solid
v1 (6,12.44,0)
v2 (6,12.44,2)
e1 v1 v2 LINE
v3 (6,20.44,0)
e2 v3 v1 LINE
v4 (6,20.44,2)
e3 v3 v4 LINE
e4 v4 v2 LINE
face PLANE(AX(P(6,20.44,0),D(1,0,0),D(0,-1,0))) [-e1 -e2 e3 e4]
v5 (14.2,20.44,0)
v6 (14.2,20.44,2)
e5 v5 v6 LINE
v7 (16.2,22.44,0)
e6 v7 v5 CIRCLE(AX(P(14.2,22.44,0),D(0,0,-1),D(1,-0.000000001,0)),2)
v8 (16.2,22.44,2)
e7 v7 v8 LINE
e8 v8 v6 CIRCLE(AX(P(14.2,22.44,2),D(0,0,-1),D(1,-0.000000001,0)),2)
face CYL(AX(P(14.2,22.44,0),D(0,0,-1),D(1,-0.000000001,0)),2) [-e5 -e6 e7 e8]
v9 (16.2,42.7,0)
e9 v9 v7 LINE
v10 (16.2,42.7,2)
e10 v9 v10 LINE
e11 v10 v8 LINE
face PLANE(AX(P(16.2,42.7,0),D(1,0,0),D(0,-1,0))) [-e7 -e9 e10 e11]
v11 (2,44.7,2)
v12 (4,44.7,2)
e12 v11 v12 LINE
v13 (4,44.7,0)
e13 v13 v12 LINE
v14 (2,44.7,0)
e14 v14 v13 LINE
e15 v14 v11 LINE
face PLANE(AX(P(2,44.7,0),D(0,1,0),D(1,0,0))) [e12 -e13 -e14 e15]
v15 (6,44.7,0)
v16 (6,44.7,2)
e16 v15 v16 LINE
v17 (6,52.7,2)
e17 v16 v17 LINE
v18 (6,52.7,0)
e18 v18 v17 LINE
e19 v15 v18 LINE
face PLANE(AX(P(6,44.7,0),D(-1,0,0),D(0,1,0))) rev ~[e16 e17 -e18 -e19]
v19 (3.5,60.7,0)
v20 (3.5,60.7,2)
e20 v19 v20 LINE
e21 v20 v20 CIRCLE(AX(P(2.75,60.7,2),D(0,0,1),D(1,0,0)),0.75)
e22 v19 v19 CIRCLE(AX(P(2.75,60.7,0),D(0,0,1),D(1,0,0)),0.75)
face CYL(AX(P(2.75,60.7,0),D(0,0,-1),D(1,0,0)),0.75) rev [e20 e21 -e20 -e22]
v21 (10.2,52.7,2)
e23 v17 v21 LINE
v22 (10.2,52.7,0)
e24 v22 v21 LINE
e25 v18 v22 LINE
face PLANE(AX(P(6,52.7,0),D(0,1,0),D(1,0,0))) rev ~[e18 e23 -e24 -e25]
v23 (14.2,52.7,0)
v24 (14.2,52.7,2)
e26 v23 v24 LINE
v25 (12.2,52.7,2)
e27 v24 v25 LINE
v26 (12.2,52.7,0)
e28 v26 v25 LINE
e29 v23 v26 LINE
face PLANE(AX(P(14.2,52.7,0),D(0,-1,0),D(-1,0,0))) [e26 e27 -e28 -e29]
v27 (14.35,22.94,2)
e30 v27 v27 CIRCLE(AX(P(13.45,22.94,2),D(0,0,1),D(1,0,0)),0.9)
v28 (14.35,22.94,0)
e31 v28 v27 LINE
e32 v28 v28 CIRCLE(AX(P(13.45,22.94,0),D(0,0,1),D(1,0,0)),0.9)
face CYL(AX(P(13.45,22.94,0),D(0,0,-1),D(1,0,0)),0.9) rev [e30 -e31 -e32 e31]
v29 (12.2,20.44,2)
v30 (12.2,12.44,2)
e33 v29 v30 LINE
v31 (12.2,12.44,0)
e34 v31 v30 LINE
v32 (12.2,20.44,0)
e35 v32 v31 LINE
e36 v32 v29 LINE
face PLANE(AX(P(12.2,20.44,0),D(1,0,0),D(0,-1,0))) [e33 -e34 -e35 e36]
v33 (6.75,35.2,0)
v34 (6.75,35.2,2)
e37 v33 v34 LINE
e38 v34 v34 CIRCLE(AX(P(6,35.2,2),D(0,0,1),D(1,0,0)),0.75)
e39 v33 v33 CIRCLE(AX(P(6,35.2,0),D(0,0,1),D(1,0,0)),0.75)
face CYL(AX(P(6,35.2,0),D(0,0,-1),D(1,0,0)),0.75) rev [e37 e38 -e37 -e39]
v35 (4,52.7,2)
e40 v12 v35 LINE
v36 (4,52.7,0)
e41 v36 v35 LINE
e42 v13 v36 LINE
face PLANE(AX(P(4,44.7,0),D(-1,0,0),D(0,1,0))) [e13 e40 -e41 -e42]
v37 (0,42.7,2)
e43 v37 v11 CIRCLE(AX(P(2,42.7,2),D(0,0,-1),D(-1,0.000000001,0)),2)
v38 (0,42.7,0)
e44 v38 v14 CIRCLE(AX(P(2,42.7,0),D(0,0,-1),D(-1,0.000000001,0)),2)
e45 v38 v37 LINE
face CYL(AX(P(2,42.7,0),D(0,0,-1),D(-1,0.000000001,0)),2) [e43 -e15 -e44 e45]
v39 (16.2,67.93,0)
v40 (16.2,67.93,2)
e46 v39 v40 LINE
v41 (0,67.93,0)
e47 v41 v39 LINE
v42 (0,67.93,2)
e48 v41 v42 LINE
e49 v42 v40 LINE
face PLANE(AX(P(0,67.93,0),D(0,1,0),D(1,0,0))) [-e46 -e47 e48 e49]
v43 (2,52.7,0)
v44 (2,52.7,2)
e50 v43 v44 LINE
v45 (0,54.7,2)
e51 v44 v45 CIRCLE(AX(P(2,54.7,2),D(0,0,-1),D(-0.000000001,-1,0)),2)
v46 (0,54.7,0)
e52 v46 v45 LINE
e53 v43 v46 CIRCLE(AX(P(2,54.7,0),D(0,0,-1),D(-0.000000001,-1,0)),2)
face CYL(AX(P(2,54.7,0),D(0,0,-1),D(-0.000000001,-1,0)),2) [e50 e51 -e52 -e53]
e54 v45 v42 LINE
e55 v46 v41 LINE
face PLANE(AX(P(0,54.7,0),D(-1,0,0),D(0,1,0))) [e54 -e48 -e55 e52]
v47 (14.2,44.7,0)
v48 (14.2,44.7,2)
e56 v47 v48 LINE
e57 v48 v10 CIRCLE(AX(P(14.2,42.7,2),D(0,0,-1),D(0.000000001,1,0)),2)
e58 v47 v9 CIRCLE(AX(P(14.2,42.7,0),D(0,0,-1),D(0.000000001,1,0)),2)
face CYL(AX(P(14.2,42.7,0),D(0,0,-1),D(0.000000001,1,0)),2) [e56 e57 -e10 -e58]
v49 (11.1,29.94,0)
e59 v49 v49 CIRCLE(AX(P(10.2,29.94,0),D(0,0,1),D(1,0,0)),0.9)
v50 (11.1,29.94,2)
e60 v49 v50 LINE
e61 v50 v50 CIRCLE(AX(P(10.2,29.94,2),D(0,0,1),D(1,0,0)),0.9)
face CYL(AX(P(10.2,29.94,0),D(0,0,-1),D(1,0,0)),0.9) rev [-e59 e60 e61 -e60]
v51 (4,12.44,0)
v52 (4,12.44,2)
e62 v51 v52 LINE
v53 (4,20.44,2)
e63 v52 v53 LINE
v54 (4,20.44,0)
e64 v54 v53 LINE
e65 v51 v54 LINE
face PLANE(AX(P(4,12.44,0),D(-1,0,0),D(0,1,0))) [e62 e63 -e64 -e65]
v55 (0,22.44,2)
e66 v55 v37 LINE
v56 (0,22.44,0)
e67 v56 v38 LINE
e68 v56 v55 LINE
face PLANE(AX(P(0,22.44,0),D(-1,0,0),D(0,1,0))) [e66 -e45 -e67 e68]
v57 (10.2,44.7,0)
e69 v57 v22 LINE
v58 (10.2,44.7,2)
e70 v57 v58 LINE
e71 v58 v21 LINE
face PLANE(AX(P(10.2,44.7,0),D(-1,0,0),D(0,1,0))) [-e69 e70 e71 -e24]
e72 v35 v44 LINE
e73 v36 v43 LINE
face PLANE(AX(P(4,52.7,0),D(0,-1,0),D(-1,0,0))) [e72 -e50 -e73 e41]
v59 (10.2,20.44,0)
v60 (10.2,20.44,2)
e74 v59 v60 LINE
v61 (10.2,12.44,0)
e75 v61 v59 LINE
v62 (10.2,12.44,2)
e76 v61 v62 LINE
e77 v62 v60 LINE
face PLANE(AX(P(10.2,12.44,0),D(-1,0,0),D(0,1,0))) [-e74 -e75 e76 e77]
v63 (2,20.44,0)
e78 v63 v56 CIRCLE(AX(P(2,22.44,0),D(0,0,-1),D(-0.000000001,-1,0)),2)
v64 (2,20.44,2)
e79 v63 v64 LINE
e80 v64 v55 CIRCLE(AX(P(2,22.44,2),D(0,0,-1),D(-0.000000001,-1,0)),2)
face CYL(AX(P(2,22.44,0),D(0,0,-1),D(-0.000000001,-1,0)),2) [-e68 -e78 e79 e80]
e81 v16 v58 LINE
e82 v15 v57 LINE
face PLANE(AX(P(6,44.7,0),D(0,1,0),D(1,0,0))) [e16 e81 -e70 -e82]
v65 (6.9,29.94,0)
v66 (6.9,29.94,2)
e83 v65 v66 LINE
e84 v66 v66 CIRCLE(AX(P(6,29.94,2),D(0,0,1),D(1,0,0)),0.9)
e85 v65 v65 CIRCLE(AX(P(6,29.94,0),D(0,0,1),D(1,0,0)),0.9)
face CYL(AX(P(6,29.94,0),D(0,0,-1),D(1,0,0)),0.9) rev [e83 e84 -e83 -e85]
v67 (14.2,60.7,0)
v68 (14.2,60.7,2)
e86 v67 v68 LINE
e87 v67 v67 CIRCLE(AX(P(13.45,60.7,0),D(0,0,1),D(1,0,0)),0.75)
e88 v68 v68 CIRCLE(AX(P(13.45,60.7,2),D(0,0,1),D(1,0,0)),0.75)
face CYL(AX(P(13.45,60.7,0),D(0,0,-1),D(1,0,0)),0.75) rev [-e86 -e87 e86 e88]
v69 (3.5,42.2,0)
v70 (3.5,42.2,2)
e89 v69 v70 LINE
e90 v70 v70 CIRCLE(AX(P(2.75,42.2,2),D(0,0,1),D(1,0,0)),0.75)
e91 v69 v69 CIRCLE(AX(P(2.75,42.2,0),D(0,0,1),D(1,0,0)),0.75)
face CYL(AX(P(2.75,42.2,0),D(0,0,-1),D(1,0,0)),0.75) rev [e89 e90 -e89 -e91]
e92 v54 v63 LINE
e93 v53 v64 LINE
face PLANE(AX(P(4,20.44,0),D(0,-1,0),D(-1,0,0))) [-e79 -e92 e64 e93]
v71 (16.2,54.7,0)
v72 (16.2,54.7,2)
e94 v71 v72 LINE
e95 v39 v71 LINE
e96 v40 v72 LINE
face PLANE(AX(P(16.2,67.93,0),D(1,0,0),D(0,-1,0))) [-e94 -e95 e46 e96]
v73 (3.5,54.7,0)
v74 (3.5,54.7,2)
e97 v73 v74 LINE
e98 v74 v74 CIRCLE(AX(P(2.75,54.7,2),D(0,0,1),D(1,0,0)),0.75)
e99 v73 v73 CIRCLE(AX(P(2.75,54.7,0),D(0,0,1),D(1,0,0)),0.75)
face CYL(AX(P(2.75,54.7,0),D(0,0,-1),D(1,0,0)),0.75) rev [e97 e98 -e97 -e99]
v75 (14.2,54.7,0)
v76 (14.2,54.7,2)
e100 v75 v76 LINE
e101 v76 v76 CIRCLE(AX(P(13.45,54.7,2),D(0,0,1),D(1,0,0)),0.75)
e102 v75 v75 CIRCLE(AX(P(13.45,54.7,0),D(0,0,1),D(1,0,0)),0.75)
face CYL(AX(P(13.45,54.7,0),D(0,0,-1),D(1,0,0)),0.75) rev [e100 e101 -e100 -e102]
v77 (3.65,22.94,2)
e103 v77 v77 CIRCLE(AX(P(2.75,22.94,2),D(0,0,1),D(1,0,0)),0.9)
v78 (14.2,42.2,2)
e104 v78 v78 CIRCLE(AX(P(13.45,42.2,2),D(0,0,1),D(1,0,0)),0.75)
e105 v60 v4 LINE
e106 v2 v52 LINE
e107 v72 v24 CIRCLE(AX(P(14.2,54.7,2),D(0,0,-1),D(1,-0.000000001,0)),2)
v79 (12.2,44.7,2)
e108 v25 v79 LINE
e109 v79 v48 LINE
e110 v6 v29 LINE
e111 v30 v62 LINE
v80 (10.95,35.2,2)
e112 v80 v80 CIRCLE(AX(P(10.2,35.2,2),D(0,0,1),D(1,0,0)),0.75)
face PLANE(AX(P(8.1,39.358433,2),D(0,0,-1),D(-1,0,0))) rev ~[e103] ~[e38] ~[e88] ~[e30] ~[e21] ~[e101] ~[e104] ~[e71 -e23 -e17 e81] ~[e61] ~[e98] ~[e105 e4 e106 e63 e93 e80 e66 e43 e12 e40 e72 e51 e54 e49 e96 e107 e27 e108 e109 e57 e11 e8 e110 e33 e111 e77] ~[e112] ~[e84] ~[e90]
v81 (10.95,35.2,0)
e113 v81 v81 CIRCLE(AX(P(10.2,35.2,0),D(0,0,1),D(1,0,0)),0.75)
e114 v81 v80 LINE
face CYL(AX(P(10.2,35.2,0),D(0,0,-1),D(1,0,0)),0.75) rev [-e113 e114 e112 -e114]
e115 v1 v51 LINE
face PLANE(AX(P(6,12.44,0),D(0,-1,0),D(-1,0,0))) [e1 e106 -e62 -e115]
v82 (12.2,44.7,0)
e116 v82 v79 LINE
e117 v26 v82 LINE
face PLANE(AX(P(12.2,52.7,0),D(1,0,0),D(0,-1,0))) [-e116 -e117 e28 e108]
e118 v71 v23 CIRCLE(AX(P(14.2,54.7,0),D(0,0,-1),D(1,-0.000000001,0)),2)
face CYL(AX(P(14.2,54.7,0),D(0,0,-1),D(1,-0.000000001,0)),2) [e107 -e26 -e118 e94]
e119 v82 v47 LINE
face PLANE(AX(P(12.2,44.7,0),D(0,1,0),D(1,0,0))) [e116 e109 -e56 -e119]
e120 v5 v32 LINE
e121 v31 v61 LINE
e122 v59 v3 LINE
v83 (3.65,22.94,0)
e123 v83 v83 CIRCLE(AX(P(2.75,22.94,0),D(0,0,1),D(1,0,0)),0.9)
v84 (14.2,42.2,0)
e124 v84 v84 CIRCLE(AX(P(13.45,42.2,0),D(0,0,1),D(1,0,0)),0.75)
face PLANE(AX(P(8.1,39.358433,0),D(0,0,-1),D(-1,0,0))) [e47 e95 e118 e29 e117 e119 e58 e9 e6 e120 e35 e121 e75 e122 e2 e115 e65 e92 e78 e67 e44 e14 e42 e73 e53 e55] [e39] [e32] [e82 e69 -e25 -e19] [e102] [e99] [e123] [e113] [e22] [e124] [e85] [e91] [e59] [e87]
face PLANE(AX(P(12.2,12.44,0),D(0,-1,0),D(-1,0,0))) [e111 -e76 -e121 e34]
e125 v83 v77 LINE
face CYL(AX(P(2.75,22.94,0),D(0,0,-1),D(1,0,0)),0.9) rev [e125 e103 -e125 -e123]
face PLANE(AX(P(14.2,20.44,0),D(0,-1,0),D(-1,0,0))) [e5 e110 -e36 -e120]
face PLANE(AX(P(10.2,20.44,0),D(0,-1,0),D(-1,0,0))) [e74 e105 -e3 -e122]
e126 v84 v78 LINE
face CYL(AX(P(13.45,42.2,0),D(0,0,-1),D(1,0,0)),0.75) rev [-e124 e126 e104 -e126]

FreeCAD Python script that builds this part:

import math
import FreeCAD as App
import Part
import Sketcher
Q = App.Units.Quantity

doc = App.newDocument("Part")
params = doc.addObject("Spreadsheet::Sheet", "Params")
for row, (alias, value) in enumerate([
    ("sketch1_radius", "2 mm"),
    ("sketch1_diameter", "1.8 mm"),
    ("sketch1_diameter2", "1.5 mm"),
    ("sketch1_width", "2 mm"),
    ("sketch1_height", "8 mm"),
    ("pad1_length", "2 mm"),
], start=1):
    params.set(f"A{row}", alias)
    params.set(f"B{row}", "=" + value)
    params.setAlias(f"B{row}", alias)

body = doc.addObject("PartDesign::Body", "Body")

sketch1 = body.newObject("Sketcher::SketchObject", "Sketch")
sketch1.AttachmentSupport = (doc.getObject("XY_Plane"), [""])
sketch1.MapMode = "FlatFace"
sketch1.addGeometry([
    Part.LineSegment(App.Vector(4, 52.7, 0), App.Vector(4, 44.7, 0)),
    Part.LineSegment(App.Vector(4, 44.7, 0), App.Vector(2, 44.7, 0)),
    Part.ArcOfCircle(Part.Circle(App.Vector(2, 42.7, 0), App.Vector(0, 0, 1), 2), math.radians(90), math.radians(180)),
    Part.LineSegment(App.Vector(0, 42.7, 0), App.Vector(0, 22.44, 0)),
    Part.ArcOfCircle(Part.Circle(App.Vector(2, 22.44, 0), App.Vector(0, 0, 1), 2), math.radians(-180), math.radians(-90)),
    Part.LineSegment(App.Vector(2, 20.44, 0), App.Vector(4, 20.44, 0)),
    Part.LineSegment(App.Vector(4, 20.44, 0), App.Vector(4, 12.44, 0)),
    Part.LineSegment(App.Vector(4, 12.44, 0), App.Vector(6, 12.44, 0)),
    Part.LineSegment(App.Vector(6, 12.44, 0), App.Vector(6, 20.44, 0)),
    Part.LineSegment(App.Vector(6, 20.44, 0), App.Vector(10.2, 20.44, 0)),
    Part.LineSegment(App.Vector(10.2, 20.44, 0), App.Vector(10.2, 12.44, 0)),
    Part.LineSegment(App.Vector(10.2, 12.44, 0), App.Vector(12.2, 12.44, 0)),
    Part.LineSegment(App.Vector(12.2, 12.44, 0), App.Vector(12.2, 20.44, 0)),
    Part.LineSegment(App.Vector(12.2, 20.44, 0), App.Vector(14.2, 20.44, 0)),
    Part.ArcOfCircle(Part.Circle(App.Vector(14.2, 22.44, 0), App.Vector(0, 0, 1), 2), math.radians(-90), math.radians(0)),
    Part.LineSegment(App.Vector(16.2, 22.44, 0), App.Vector(16.2, 42.7, 0)),
    Part.ArcOfCircle(Part.Circle(App.Vector(14.2, 42.7, 0), App.Vector(0, 0, 1), 2), math.radians(0), math.radians(90)),
    Part.LineSegment(App.Vector(14.2, 44.7, 0), App.Vector(12.2, 44.7, 0)),
    Part.LineSegment(App.Vector(12.2, 44.7, 0), App.Vector(12.2, 52.7, 0)),
    Part.LineSegment(App.Vector(12.2, 52.7, 0), App.Vector(14.2, 52.7, 0)),
    Part.ArcOfCircle(Part.Circle(App.Vector(14.2, 54.7, 0), App.Vector(0, 0, 1), 2), math.radians(-90), math.radians(0)),
    Part.LineSegment(App.Vector(16.2, 54.7, 0), App.Vector(16.2, 67.93, 0)),
    Part.LineSegment(App.Vector(16.2, 67.93, 0), App.Vector(0, 67.93, 0)),
    Part.LineSegment(App.Vector(0, 67.93, 0), App.Vector(0, 54.7, 0)),
    Part.ArcOfCircle(Part.Circle(App.Vector(2, 54.7, 0), App.Vector(0, 0, 1), 2), math.radians(-180), math.radians(-90)),
    Part.LineSegment(App.Vector(2, 52.7, 0), App.Vector(4, 52.7, 0)),
    Part.Circle(App.Vector(13.45, 22.94, 0), App.Vector(0, 0, 1), 0.9),
    Part.Circle(App.Vector(10.2, 29.94, 0), App.Vector(0, 0, 1), 0.9),
    Part.Circle(App.Vector(10.2, 35.2, 0), App.Vector(0, 0, 1), 0.75),
    Part.Circle(App.Vector(6, 29.94, 0), App.Vector(0, 0, 1), 0.9),
    Part.Circle(App.Vector(2.75, 22.94, 0), App.Vector(0, 0, 1), 0.9),
    Part.Circle(App.Vector(6, 35.2, 0), App.Vector(0, 0, 1), 0.75),
    Part.Circle(App.Vector(13.45, 42.2, 0), App.Vector(0, 0, 1), 0.75),
    Part.Circle(App.Vector(13.45, 54.7, 0), App.Vector(0, 0, 1), 0.75),
    Part.Circle(App.Vector(13.45, 60.7, 0), App.Vector(0, 0, 1), 0.75),
    Part.LineSegment(App.Vector(6, 44.7, 0), App.Vector(6, 52.7, 0)),
    Part.LineSegment(App.Vector(6, 52.7, 0), App.Vector(10.2, 52.7, 0)),
    Part.LineSegment(App.Vector(10.2, 52.7, 0), App.Vector(10.2, 44.7, 0)),
    Part.LineSegment(App.Vector(10.2, 44.7, 0), App.Vector(6, 44.7, 0)),
    Part.Circle(App.Vector(2.75, 42.2, 0), App.Vector(0, 0, 1), 0.75),
    Part.Circle(App.Vector(2.75, 54.7, 0), App.Vector(0, 0, 1), 0.75),
    Part.Circle(App.Vector(2.75, 60.7, 0), App.Vector(0, 0, 1), 0.75),
], False)
sketch1.addConstraint([
    Sketcher.Constraint("Coincident", 0, 2, 1, 1),
    Sketcher.Constraint("Tangent", 1, 2, 2, 1),
    Sketcher.Constraint("Tangent", 2, 2, 3, 1),
    Sketcher.Constraint("Tangent", 3, 2, 4, 1),
    Sketcher.Constraint("Tangent", 4, 2, 5, 1),
    Sketcher.Constraint("Coincident", 5, 2, 6, 1),
    Sketcher.Constraint("Coincident", 6, 2, 7, 1),
    Sketcher.Constraint("Coincident", 7, 2, 8, 1),
    Sketcher.Constraint("Coincident", 8, 2, 9, 1),
    Sketcher.Constraint("Coincident", 9, 2, 10, 1),
    Sketcher.Constraint("Coincident", 10, 2, 11, 1),
    Sketcher.Constraint("Coincident", 11, 2, 12, 1),
    Sketcher.Constraint("Coincident", 12, 2, 13, 1),
    Sketcher.Constraint("Tangent", 13, 2, 14, 1),
    Sketcher.Constraint("Tangent", 14, 2, 15, 1),
    Sketcher.Constraint("Tangent", 15, 2, 16, 1),
    Sketcher.Constraint("Tangent", 16, 2, 17, 1),
    Sketcher.Constraint("Coincident", 17, 2, 18, 1),
    Sketcher.Constraint("Coincident", 18, 2, 19, 1),
    Sketcher.Constraint("Tangent", 19, 2, 20, 1),
    Sketcher.Constraint("Tangent", 20, 2, 21, 1),
    Sketcher.Constraint("Coincident", 21, 2, 22, 1),
    Sketcher.Constraint("Coincident", 22, 2, 23, 1),
    Sketcher.Constraint("Tangent", 23, 2, 24, 1),
    Sketcher.Constraint("Tangent", 24, 2, 25, 1),
    Sketcher.Constraint("Coincident", 25, 2, 0, 1),
    Sketcher.Constraint("Coincident", 35, 2, 36, 1),
    Sketcher.Constraint("Coincident", 36, 2, 37, 1),
    Sketcher.Constraint("Coincident", 37, 2, 38, 1),
    Sketcher.Constraint("Coincident", 38, 2, 35, 1),
    Sketcher.Constraint("Vertical", 0),
    Sketcher.Constraint("Horizontal", 1),
    Sketcher.Constraint("Vertical", 3),
    Sketcher.Constraint("Horizontal", 5),
    Sketcher.Constraint("Vertical", 6),
    Sketcher.Constraint("Horizontal", 7),
    Sketcher.Constraint("Vertical", 8),
    Sketcher.Constraint("Horizontal", 9),
    Sketcher.Constraint("Vertical", 10),
    Sketcher.Constraint("Horizontal", 11),
    Sketcher.Constraint("Vertical", 12),
    Sketcher.Constraint("Horizontal", 13),
    Sketcher.Constraint("Vertical", 15),
    Sketcher.Constraint("Horizontal", 17),
    Sketcher.Constraint("Vertical", 18),
    Sketcher.Constraint("Horizontal", 19),
    Sketcher.Constraint("Vertical", 21),
    Sketcher.Constraint("Horizontal", 22),
    Sketcher.Constraint("Vertical", 23),
    Sketcher.Constraint("Horizontal", 25),
    Sketcher.Constraint("Vertical", 35),
    Sketcher.Constraint("Horizontal", 36),
    Sketcher.Constraint("Vertical", 37),
    Sketcher.Constraint("Horizontal", 38),
    Sketcher.Constraint("Equal", 2, 4),
    Sketcher.Constraint("Equal", 4, 14),
    Sketcher.Constraint("Equal", 14, 16),
    Sketcher.Constraint("Equal", 16, 20),
    Sketcher.Constraint("Equal", 20, 24),
    Sketcher.Constraint("Equal", 26, 27),
    Sketcher.Constraint("Equal", 27, 29),
    Sketcher.Constraint("Equal", 29, 30),
    Sketcher.Constraint("Equal", 28, 31),
    Sketcher.Constraint("Equal", 31, 32),
    Sketcher.Constraint("Equal", 32, 33),
    Sketcher.Constraint("Equal", 33, 34),
    Sketcher.Constraint("Equal", 34, 39),
    Sketcher.Constraint("Equal", 39, 40),
    Sketcher.Constraint("Equal", 40, 41),
    Sketcher.Constraint("PointOnObject", 2, 2, -2),
    Sketcher.Constraint("PointOnObject", 22, 2, -2),
    Sketcher.Constraint("Horizontal", 4, 3, 14, 3),
    Sketcher.Constraint("Horizontal", 2, 3, 16, 3),
    Sketcher.Constraint("Horizontal", 20, 3, 24, 3),
    Sketcher.Constraint("Horizontal", 27, 3, 29, 3),
    Sketcher.Constraint("Horizontal", 26, 3, 30, 3),
    Sketcher.Constraint("Horizontal", 28, 3, 31, 3),
    Sketcher.Constraint("Horizontal", 24, 3, 33, 3),
    Sketcher.Constraint("Horizontal", 32, 3, 39, 3),
    Sketcher.Constraint("Horizontal", 33, 3, 40, 3),
    Sketcher.Constraint("Horizontal", 34, 3, 41, 3),
    Sketcher.Constraint("Horizontal", 5, 2, 8, 2),
    Sketcher.Constraint("Horizontal", 7, 2, 10, 2),
    Sketcher.Constraint("Horizontal", 25, 2, 35, 2),
    Sketcher.Constraint("Horizontal", 17, 2, 37, 2),
    Sketcher.Constraint("Vertical", 16, 3, 20, 3),
    Sketcher.Constraint("Vertical", 27, 3, 28, 3),
    Sketcher.Constraint("Vertical", 29, 3, 31, 3),
    Sketcher.Constraint("Vertical", 26, 3, 32, 3),
    Sketcher.Constraint("Vertical", 32, 3, 33, 3),
    Sketcher.Constraint("Vertical", 33, 3, 34, 3),
    Sketcher.Constraint("Vertical", 30, 3, 39, 3),
    Sketcher.Constraint("Vertical", 39, 3, 40, 3),
    Sketcher.Constraint("Vertical", 40, 3, 41, 3),
    Sketcher.Constraint("Vertical", 0, 2, 5, 2),
    Sketcher.Constraint("Vertical", 31, 3, 7, 2),
    Sketcher.Constraint("Vertical", 28, 3, 9, 2),
    Sketcher.Constraint("Vertical", 12, 2, 17, 2),
    Sketcher.Constraint("Vertical", 8, 2, 35, 2),
    Sketcher.Constraint("Vertical", 10, 2, 36, 2),
    Sketcher.Constraint("Equal", 5, 7),
    Sketcher.Constraint("Equal", 7, 11),
    Sketcher.Constraint("Equal", 11, 13),
    Sketcher.Constraint("Equal", 0, 6),
    Sketcher.Constraint("Radius", 2, Q("2 mm")),
    Sketcher.Constraint("Diameter", 26, Q("1.8 mm")),
    Sketcher.Constraint("Diameter", 28, Q("1.5 mm")),
    Sketcher.Constraint("DistanceX", 1, 2, 1, 1, Q("2 mm")),
    Sketcher.Constraint("DistanceY", 0, 2, 0, 1, Q("8 mm")),
    Sketcher.Constraint("DistanceX", 9, 1, 9, 2, Q("4.2 mm")),
    Sketcher.Constraint("DistanceY", 26, 3, 27, 3, Q("7 mm")),
    Sketcher.Constraint("DistanceY", 28, 3, 32, 3, Q("7 mm")),
    Sketcher.Constraint("DistanceY", 33, 3, 34, 3, Q("6 mm")),
    Sketcher.Constraint("DistanceY", 3, 2, 3, 1, Q("20.26 mm")),
    Sketcher.Constraint("DistanceY", 21, 1, 21, 2, Q("13.23 mm")),
    Sketcher.Constraint("DistanceY", -1, 1, 2, 3, Q("42.7 mm")),
    Sketcher.Constraint("DistanceY", -1, 1, 28, 3, Q("35.2 mm")),
    Sketcher.Constraint("DistanceY", 14, 3, 26, 3, Q("0.5 mm")),
    Sketcher.Constraint("DistanceX", 30, 3, 26, 3, Q("10.7 mm")),
    Sketcher.Constraint("DistanceX", -1, 1, 26, 3, Q("13.45 mm")),
])
sketch1.setExpression("Constraints[104]", "Params.sketch1_radius")
sketch1.setExpression("Constraints[105]", "Params.sketch1_diameter")
sketch1.setExpression("Constraints[106]", "Params.sketch1_diameter2")
sketch1.setExpression("Constraints[107]", "Params.sketch1_width")
sketch1.setExpression("Constraints[108]", "Params.sketch1_height")
pad1 = body.newObject("PartDesign::Pad", "Pad")
pad1.Profile = sketch1
pad1.setExpression("Length", "Params.pad1_length")

doc.recompute()
